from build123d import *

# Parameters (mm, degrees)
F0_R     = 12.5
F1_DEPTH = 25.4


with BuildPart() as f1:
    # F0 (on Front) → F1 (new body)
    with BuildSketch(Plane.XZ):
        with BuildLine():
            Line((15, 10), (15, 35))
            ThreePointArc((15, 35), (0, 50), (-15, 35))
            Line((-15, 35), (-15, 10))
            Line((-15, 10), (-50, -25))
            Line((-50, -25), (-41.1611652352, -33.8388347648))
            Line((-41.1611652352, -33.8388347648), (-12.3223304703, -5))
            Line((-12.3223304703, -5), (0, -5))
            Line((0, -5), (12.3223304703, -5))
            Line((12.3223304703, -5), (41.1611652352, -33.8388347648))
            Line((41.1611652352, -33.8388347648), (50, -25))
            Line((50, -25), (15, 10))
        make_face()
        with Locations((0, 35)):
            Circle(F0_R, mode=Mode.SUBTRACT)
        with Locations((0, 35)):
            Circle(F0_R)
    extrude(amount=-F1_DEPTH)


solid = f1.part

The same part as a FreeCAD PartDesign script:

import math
import FreeCAD as App
import Part
import Sketcher

V = App.Vector

doc = App.newDocument("Part")
body = doc.addObject("PartDesign::Body", "Body")

# Sketch on XZ plane
sketch1 = doc.addObject("Sketcher::SketchObject", "Sketch")
body.addObject(sketch1)
sketch1.AttachmentSupport = (doc.XZ_Plane, [""])
sketch1.MapMode = "FlatFace"
sketch1.addGeometry([
    Part.LineSegment(V(15, 10, 0), V(15, 35, 0)),  # 0
    Part.ArcOfCircle(Part.Circle(V(0, 35, 0), V(0, 0, 1), 15), math.radians(0), math.radians(180)),  # 1
    Part.LineSegment(V(-15, 35, 0), V(-15, 10, 0)),  # 2
    Part.LineSegment(V(-15, 10, 0), V(-50, -25, 0)),  # 3
    Part.LineSegment(V(-50, -25, 0), V(-41, -34, 0)),  # 4
    Part.LineSegment(V(-41, -34, 0), V(-12, -5, 0)),  # 5
    Part.LineSegment(V(-12, -5, 0), V(12, -5, 0)),  # 6
    Part.LineSegment(V(12, -5, 0), V(41, -34, 0)),  # 7
    Part.LineSegment(V(41, -34, 0), V(50, -25, 0)),  # 8
    Part.LineSegment(V(50, -25, 0), V(15, 10, 0)),  # 9
], False)
sketch1.addConstraint([
    Sketcher.Constraint("Tangent", 0, 2, 1, 1),
    Sketcher.Constraint("Tangent", 1, 2, 2, 1),
    Sketcher.Constraint("Coincident", 2, 2, 3, 1),
    Sketcher.Constraint("Coincident", 3, 2, 4, 1),
    Sketcher.Constraint("Coincident", 4, 2, 5, 1),
    Sketcher.Constraint("Coincident", 5, 2, 6, 1),
    Sketcher.Constraint("Coincident", 6, 2, 7, 1),
    Sketcher.Constraint("Coincident", 7, 2, 8, 1),
    Sketcher.Constraint("Coincident", 8, 2, 9, 1),
    Sketcher.Constraint("Coincident", 9, 2, 0, 1),
    Sketcher.Constraint("Vertical", 0),
    Sketcher.Constraint("Vertical", 2),
    Sketcher.Constraint("Horizontal", 6),
    Sketcher.Constraint("Symmetric", 4, 2, 7, 2, -2),
    Sketcher.Constraint("Symmetric", 3, 2, 8, 2, -2),
    Sketcher.Constraint("Symmetric", 2, 2, 9, 2, -2),
    Sketcher.Constraint("Perpendicular", 3, 4),
    Sketcher.Constraint("Perpendicular", 4, 5),
    Sketcher.Constraint("Perpendicular", 5, 7),
    Sketcher.Constraint("Perpendicular", 7, 8),
    Sketcher.Constraint("Radius", 1, 15.0),
    Sketcher.Constraint("DistanceY", 0, 1, 0, 2, 25.0),
    Sketcher.Constraint("DistanceY", -1, 1, 1, 3, 35.0),
    Sketcher.Constraint("DistanceX", 3, 2, -1, 1, 50.0),
    Sketcher.Constraint("DistanceY", 5, 2, -1, 1, 5.0),
    Sketcher.Constraint("Distance", 4, 12.5),
])
pad1 = doc.addObject("PartDesign::Pad", "Pad")
body.addObject(pad1)
pad1.Profile = sketch1
pad1.Length = 25.4
pad1.Reversed = True

doc.recompute()
